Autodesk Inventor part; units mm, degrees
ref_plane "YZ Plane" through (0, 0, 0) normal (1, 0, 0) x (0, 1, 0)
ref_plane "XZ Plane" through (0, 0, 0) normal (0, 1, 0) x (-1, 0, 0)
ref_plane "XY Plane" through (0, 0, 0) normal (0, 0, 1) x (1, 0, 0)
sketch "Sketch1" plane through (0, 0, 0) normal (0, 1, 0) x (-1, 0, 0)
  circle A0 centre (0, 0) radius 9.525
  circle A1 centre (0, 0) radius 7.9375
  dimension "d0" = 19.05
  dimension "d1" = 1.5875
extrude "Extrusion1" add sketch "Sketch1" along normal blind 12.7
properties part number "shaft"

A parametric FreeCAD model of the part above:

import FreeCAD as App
import Part
import Sketcher
Q = App.Units.Quantity

doc = App.newDocument("Part")
body = doc.addObject("PartDesign::Body", "Body")

# Sketch on XZ plane
sketch1 = body.newObject("Sketcher::SketchObject", "Sketch")
sketch1.AttachmentSupport = (doc.getObject("XZ_Plane"), [""])
sketch1.MapMode = "FlatFace"
sketch1.addGeometry([
    Part.Circle(App.Vector(0, 0, 0), App.Vector(0, 0, 1), 9.525),
    Part.Circle(App.Vector(0, 0, 0), App.Vector(0, 0, 1), 7.9375),
], False)
sketch1.addConstraint([
    Sketcher.Constraint("Coincident", 0, 3, -1, 1),
    Sketcher.Constraint("Coincident", 1, 3, -1, 1),
    Sketcher.Constraint("Diameter", 0, Q("0.75 in")),
    Sketcher.Constraint("Diameter", 1, Q("0.625 in")),
])
pad1 = body.newObject("PartDesign::Pad", "Pad")
pad1.Profile = sketch1
pad1.Length = Q("0.5 in")
pad1.Reversed = True

doc.recompute()
